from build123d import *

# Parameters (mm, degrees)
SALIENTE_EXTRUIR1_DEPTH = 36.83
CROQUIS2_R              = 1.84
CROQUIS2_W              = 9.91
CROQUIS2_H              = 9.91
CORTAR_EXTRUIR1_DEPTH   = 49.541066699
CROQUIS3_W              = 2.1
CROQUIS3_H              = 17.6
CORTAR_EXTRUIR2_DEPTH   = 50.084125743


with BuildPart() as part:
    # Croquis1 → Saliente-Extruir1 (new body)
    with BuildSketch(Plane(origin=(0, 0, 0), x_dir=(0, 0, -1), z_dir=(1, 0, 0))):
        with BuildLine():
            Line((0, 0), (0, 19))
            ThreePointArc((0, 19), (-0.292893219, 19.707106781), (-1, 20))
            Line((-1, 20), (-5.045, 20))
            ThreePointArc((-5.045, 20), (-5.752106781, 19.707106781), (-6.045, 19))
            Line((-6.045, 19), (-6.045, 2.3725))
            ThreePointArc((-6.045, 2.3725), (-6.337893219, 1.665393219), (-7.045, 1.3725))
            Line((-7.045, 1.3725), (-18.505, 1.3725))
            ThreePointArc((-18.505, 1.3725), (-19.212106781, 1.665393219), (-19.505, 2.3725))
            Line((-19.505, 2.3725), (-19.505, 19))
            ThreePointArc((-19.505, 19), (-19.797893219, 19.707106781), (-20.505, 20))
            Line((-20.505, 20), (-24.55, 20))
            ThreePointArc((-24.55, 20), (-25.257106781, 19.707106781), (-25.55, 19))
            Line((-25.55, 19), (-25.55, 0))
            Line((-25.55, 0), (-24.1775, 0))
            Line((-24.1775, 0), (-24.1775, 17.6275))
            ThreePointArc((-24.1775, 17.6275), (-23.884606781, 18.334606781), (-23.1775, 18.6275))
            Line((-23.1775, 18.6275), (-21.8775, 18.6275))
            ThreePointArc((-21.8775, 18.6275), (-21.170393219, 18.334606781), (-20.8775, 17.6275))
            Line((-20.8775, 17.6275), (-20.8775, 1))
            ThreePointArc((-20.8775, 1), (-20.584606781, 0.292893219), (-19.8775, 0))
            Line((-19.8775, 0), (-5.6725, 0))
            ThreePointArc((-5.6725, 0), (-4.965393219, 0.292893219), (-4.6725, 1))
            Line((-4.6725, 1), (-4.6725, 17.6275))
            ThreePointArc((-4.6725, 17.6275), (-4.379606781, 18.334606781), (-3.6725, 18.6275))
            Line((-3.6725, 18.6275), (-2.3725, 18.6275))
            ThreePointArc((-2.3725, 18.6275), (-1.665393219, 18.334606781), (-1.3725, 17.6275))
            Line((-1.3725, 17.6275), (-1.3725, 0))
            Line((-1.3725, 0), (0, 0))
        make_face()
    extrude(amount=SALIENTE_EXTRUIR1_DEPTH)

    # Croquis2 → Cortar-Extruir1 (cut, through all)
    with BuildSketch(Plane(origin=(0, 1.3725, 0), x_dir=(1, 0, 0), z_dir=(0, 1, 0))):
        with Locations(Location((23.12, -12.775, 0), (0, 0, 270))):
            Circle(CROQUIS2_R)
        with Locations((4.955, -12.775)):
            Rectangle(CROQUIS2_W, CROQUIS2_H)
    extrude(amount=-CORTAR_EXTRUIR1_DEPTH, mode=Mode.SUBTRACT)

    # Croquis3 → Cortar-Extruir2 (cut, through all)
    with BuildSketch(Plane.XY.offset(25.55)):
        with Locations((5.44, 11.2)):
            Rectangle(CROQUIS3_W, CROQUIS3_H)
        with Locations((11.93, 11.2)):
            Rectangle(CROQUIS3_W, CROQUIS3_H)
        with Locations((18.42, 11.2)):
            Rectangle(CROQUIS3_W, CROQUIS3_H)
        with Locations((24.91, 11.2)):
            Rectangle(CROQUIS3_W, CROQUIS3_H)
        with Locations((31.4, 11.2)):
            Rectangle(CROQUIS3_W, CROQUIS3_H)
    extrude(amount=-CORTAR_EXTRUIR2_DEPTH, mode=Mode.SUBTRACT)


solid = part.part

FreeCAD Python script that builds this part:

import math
import FreeCAD as App
import Part
import Sketcher


def add_polygon(sketch, points):
    """Adds a closed chain of lines whose ends are joined by coincident constraints."""
    first, n = sketch.GeometryCount, len(points)
    for a, b in zip(points, points[1:] + points[:1]):
        sketch.addGeometry(Part.LineSegment(App.Vector(*a, 0), App.Vector(*b, 0)), False)
    for i in range(n):
        sketch.addConstraint(Sketcher.Constraint("Coincident", first + i, 2, first + (i + 1) % n, 1))

doc = App.newDocument("Part")
body = doc.addObject("PartDesign::Body", "Body")

# Sketch on YZ plane
sketch1 = body.newObject("Sketcher::SketchObject", "Sketch")
sketch1.AttachmentSupport = (doc.getObject("YZ_Plane"), [""])
sketch1.MapMode = "FlatFace"
sketch1.addGeometry(Part.LineSegment(App.Vector(0, 0, 0), App.Vector(19, 0, 0)), False)
sketch1.addGeometry(Part.ArcOfCircle(Part.Circle(App.Vector(19, 1, 0), App.Vector(0, 0, 1), 1), math.radians(-90), math.radians(0)), False)
sketch1.addGeometry(Part.LineSegment(App.Vector(20, 1, 0), App.Vector(20, 5.045, 0)), False)
sketch1.addGeometry(Part.ArcOfCircle(Part.Circle(App.Vector(19, 5.045, 0), App.Vector(0, 0, 1), 1), math.radians(0), math.radians(90)), False)
sketch1.addGeometry(Part.LineSegment(App.Vector(19, 6.045, 0), App.Vector(2.3725, 6.045, 0)), False)
sketch1.addGeometry(Part.ArcOfCircle(Part.Circle(App.Vector(2.3725, 7.045, 0), App.Vector(0, 0, 1), 1), math.radians(-180), math.radians(-90)), False)
sketch1.addGeometry(Part.LineSegment(App.Vector(1.3725, 7.045, 0), App.Vector(1.3725, 18.505, 0)), False)
sketch1.addGeometry(Part.ArcOfCircle(Part.Circle(App.Vector(2.3725, 18.505, 0), App.Vector(0, 0, 1), 1), math.radians(90), math.radians(180)), False)
sketch1.addGeometry(Part.LineSegment(App.Vector(2.3725, 19.505, 0), App.Vector(19, 19.505, 0)), False)
sketch1.addGeometry(Part.ArcOfCircle(Part.Circle(App.Vector(19, 20.505, 0), App.Vector(0, 0, 1), 1), math.radians(-90), math.radians(0)), False)
sketch1.addGeometry(Part.LineSegment(App.Vector(20, 20.505, 0), App.Vector(20, 24.55, 0)), False)
sketch1.addGeometry(Part.ArcOfCircle(Part.Circle(App.Vector(19, 24.55, 0), App.Vector(0, 0, 1), 1), math.radians(0), math.radians(90)), False)
sketch1.addGeometry(Part.LineSegment(App.Vector(19, 25.55, 0), App.Vector(0, 25.55, 0)), False)
sketch1.addGeometry(Part.LineSegment(App.Vector(0, 25.55, 0), App.Vector(0, 24.1775, 0)), False)
sketch1.addGeometry(Part.LineSegment(App.Vector(0, 24.1775, 0), App.Vector(17.6275, 24.1775, 0)), False)
sketch1.addGeometry(Part.ArcOfCircle(Part.Circle(App.Vector(17.6275, 23.1775, 0), App.Vector(0, 0, 1), 1), math.radians(0), math.radians(90)), False)
sketch1.addGeometry(Part.LineSegment(App.Vector(18.6275, 23.1775, 0), App.Vector(18.6275, 21.8775, 0)), False)
sketch1.addGeometry(Part.ArcOfCircle(Part.Circle(App.Vector(17.6275, 21.8775, 0), App.Vector(0, 0, 1), 1), math.radians(-90), math.radians(0)), False)
sketch1.addGeometry(Part.LineSegment(App.Vector(17.6275, 20.8775, 0), App.Vector(1, 20.8775, 0)), False)
sketch1.addGeometry(Part.ArcOfCircle(Part.Circle(App.Vector(1, 19.8775, 0), App.Vector(0, 0, 1), 1), math.radians(90), math.radians(180)), False)
sketch1.addGeometry(Part.LineSegment(App.Vector(0, 19.8775, 0), App.Vector(0, 5.6725, 0)), False)
sketch1.addGeometry(Part.ArcOfCircle(Part.Circle(App.Vector(1, 5.6725, 0), App.Vector(0, 0, 1), 1), math.radians(-180), math.radians(-90)), False)
sketch1.addGeometry(Part.LineSegment(App.Vector(1, 4.6725, 0), App.Vector(17.6275, 4.6725, 0)), False)
sketch1.addGeometry(Part.ArcOfCircle(Part.Circle(App.Vector(17.6275, 3.6725, 0), App.Vector(0, 0, 1), 1), math.radians(0), math.radians(90)), False)
sketch1.addGeometry(Part.LineSegment(App.Vector(18.6275, 3.6725, 0), App.Vector(18.6275, 2.3725, 0)), False)
sketch1.addGeometry(Part.ArcOfCircle(Part.Circle(App.Vector(17.6275, 2.3725, 0), App.Vector(0, 0, 1), 1), math.radians(-90), math.radians(0)), False)
sketch1.addGeometry(Part.LineSegment(App.Vector(17.6275, 1.3725, 0), App.Vector(0, 1.3725, 0)), False)
sketch1.addGeometry(Part.LineSegment(App.Vector(0, 1.3725, 0), App.Vector(0, 0, 0)), False)
sketch1.addConstraint(Sketcher.Constraint("Tangent", 0, 2, 1, 1))
sketch1.addConstraint(Sketcher.Constraint("Tangent", 1, 2, 2, 1))
sketch1.addConstraint(Sketcher.Constraint("Tangent", 2, 2, 3, 1))
sketch1.addConstraint(Sketcher.Constraint("Tangent", 3, 2, 4, 1))
sketch1.addConstraint(Sketcher.Constraint("Tangent", 4, 2, 5, 2))
sketch1.addConstraint(Sketcher.Constraint("Tangent", 5, 1, 6, 1))
sketch1.addConstraint(Sketcher.Constraint("Tangent", 6, 2, 7, 2))
sketch1.addConstraint(Sketcher.Constraint("Tangent", 7, 1, 8, 1))
sketch1.addConstraint(Sketcher.Constraint("Tangent", 8, 2, 9, 1))
sketch1.addConstraint(Sketcher.Constraint("Tangent", 9, 2, 10, 1))
sketch1.addConstraint(Sketcher.Constraint("Tangent", 10, 2, 11, 1))
sketch1.addConstraint(Sketcher.Constraint("Tangent", 11, 2, 12, 1))
sketch1.addConstraint(Sketcher.Constraint("Coincident", 12, 2, 13, 1))
sketch1.addConstraint(Sketcher.Constraint("Coincident", 13, 2, 14, 1))
sketch1.addConstraint(Sketcher.Constraint("Tangent", 14, 2, 15, 2))
sketch1.addConstraint(Sketcher.Constraint("Tangent", 15, 1, 16, 1))
sketch1.addConstraint(Sketcher.Constraint("Tangent", 16, 2, 17, 2))
sketch1.addConstraint(Sketcher.Constraint("Tangent", 17, 1, 18, 1))
sketch1.addConstraint(Sketcher.Constraint("Tangent", 18, 2, 19, 1))
sketch1.addConstraint(Sketcher.Constraint("Tangent", 19, 2, 20, 1))
sketch1.addConstraint(Sketcher.Constraint("Tangent", 20, 2, 21, 1))
sketch1.addConstraint(Sketcher.Constraint("Tangent", 21, 2, 22, 1))
sketch1.addConstraint(Sketcher.Constraint("Tangent", 22, 2, 23, 2))
sketch1.addConstraint(Sketcher.Constraint("Tangent", 23, 1, 24, 1))
sketch1.addConstraint(Sketcher.Constraint("Tangent", 24, 2, 25, 2))
sketch1.addConstraint(Sketcher.Constraint("Tangent", 25, 1, 26, 1))
sketch1.addConstraint(Sketcher.Constraint("Coincident", 26, 2, 27, 1))
sketch1.addConstraint(Sketcher.Constraint("Coincident", 27, 2, 0, 1))
sketch1.addConstraint(Sketcher.Constraint("Horizontal", 0))
sketch1.addConstraint(Sketcher.Constraint("Vertical", 2))
sketch1.addConstraint(Sketcher.Constraint("Horizontal", 4))
sketch1.addConstraint(Sketcher.Constraint("Vertical", 6))
sketch1.addConstraint(Sketcher.Constraint("Horizontal", 8))
sketch1.addConstraint(Sketcher.Constraint("Vertical", 10))
sketch1.addConstraint(Sketcher.Constraint("Horizontal", 12))
sketch1.addConstraint(Sketcher.Constraint("Vertical", 13))
sketch1.addConstraint(Sketcher.Constraint("Horizontal", 14))
sketch1.addConstraint(Sketcher.Constraint("Vertical", 16))
sketch1.addConstraint(Sketcher.Constraint("Horizontal", 18))
sketch1.addConstraint(Sketcher.Constraint("Vertical", 20))
sketch1.addConstraint(Sketcher.Constraint("Horizontal", 22))
sketch1.addConstraint(Sketcher.Constraint("Vertical", 24))
sketch1.addConstraint(Sketcher.Constraint("Horizontal", 26))
sketch1.addConstraint(Sketcher.Constraint("Vertical", 27))
sketch1.addConstraint(Sketcher.Constraint("Coincident", 27, 2, -1, 1))
sketch1.addConstraint(Sketcher.Constraint("Equal", 1, 3))
sketch1.addConstraint(Sketcher.Constraint("Equal", 3, 5))
sketch1.addConstraint(Sketcher.Constraint("Equal", 5, 7))
sketch1.addConstraint(Sketcher.Constraint("Equal", 7, 9))
sketch1.addConstraint(Sketcher.Constraint("Equal", 9, 11))
sketch1.addConstraint(Sketcher.Constraint("Equal", 11, 15))
sketch1.addConstraint(Sketcher.Constraint("Equal", 15, 17))
sketch1.addConstraint(Sketcher.Constraint("Equal", 17, 19))
sketch1.addConstraint(Sketcher.Constraint("Equal", 19, 21))
sketch1.addConstraint(Sketcher.Constraint("Equal", 21, 23))
sketch1.addConstraint(Sketcher.Constraint("Equal", 23, 25))
sketch1.addConstraint(Sketcher.Constraint("PointOnObject", 12, 2, -2))
sketch1.addConstraint(Sketcher.Constraint("PointOnObject", 19, 2, -2))
sketch1.addConstraint(Sketcher.Constraint("Vertical", 3, 3, 9, 3))
sketch1.addConstraint(Sketcher.Constraint("Vertical", 17, 3, 23, 3))
sketch1.addConstraint(Sketcher.Constraint("Equal", 8, 18))
sketch1.addConstraint(Sketcher.Constraint("Equal", 2, 10))
sketch1.addConstraint(Sketcher.Constraint("Equal", 16, 24))
sketch1.addConstraint(Sketcher.Constraint("Equal", 13, 27))
sketch1.addConstraint(Sketcher.Constraint("Radius", 1, 1.0))
sketch1.addConstraint(Sketcher.Constraint("DistanceX", 0, 1, 0, 2, 19.0))
sketch1.addConstraint(Sketcher.Constraint("DistanceY", 16, 2, 16, 1, 1.3))
sketch1.addConstraint(Sketcher.Constraint("DistanceY", 6, 1, 6, 2, 11.46))
sketch1.addConstraint(Sketcher.Constraint("DistanceY", 2, 1, 2, 2, 4.045))
sketch1.addConstraint(Sketcher.Constraint("DistanceY", 20, 2, 20, 1, 14.205))
sketch1.addConstraint(Sketcher.Constraint("DistanceX", 4, 2, 4, 1, 16.6275))
pad1 = body.newObject("PartDesign::Pad", "Pad")
pad1.Profile = sketch1
pad1.Length = 36.83

# Sketch on XZ plane
sketch2 = body.newObject("Sketcher::SketchObject", "Sketch001")
sketch2.AttachmentSupport = (doc.getObject("XZ_Plane"), [""])
sketch2.MapMode = "FlatFace"
sketch2.AttachmentOffset = App.Placement(App.Vector(0, 0, -1.3725), App.Rotation())
sketch2.addGeometry(Part.Circle(App.Vector(23.12, 12.775, 0), App.Vector(0, 0, 1), 1.84), False)  # 0
add_polygon(sketch2, [(0, 7.82), (0, 17.73), (9.91, 17.73), (9.91, 7.82)])  # lines 1-4
sketch2.addConstraint(Sketcher.Constraint("Vertical", 1))
sketch2.addConstraint(Sketcher.Constraint("Horizontal", 2))
sketch2.addConstraint(Sketcher.Constraint("Vertical", 3))
sketch2.addConstraint(Sketcher.Constraint("Horizontal", 4))
sketch2.addConstraint(Sketcher.Constraint("PointOnObject", 1, 2, -2))
sketch2.addConstraint(Sketcher.Constraint("Equal", 4, 1))
sketch2.addConstraint(Sketcher.Constraint("Diameter", 0, 3.68))
sketch2.addConstraint(Sketcher.Constraint("DistanceX", 2, 1, 2, 2, 9.91))
sketch2.addConstraint(Sketcher.Constraint("DistanceX", -1, 1, 0, 3, 23.12))
sketch2.addConstraint(Sketcher.Constraint("DistanceY", -1, 1, 1, 2, 17.73))
sketch2.addConstraint(Sketcher.Constraint("DistanceY", -1, 1, 0, 3, 12.775))
pocket1 = body.newObject("PartDesign::Pocket", "Pocket")
pocket1.Profile = sketch2
pocket1.Type = "ThroughAll"
pocket1.Reversed = True

# Sketch on XY plane
sketch3 = body.newObject("Sketcher::SketchObject", "Sketch002")
sketch3.AttachmentSupport = (doc.getObject("XY_Plane"), [""])
sketch3.MapMode = "FlatFace"
sketch3.AttachmentOffset = App.Placement(App.Vector(0, 0, 25.55), App.Rotation())
add_polygon(sketch3, [(4.39, 20), (4.39, 2.4), (6.49, 2.4), (6.49, 20)])  # lines 0-3
add_polygon(sketch3, [(10.88, 20), (10.88, 2.4), (12.98, 2.4), (12.98, 20)])  # lines 4-7
add_polygon(sketch3, [(17.37, 20), (17.37, 2.4), (19.47, 2.4), (19.47, 20)])  # lines 8-11
add_polygon(sketch3, [(23.86, 20), (23.86, 2.4), (25.96, 2.4), (25.96, 20)])  # lines 12-15
add_polygon(sketch3, [(30.35, 20), (30.35, 2.4), (32.45, 2.4), (32.45, 20)])  # lines 16-19
sketch3.addConstraint(Sketcher.Constraint("Vertical", 0))
sketch3.addConstraint(Sketcher.Constraint("Horizontal", 1))
sketch3.addConstraint(Sketcher.Constraint("Vertical", 2))
sketch3.addConstraint(Sketcher.Constraint("Horizontal", 3))
sketch3.addConstraint(Sketcher.Constraint("Vertical", 4))
sketch3.addConstraint(Sketcher.Constraint("Horizontal", 5))
sketch3.addConstraint(Sketcher.Constraint("Vertical", 6))
sketch3.addConstraint(Sketcher.Constraint("Horizontal", 7))
sketch3.addConstraint(Sketcher.Constraint("Vertical", 8))
sketch3.addConstraint(Sketcher.Constraint("Horizontal", 9))
sketch3.addConstraint(Sketcher.Constraint("Vertical", 10))
sketch3.addConstraint(Sketcher.Constraint("Horizontal", 11))
sketch3.addConstraint(Sketcher.Constraint("Vertical", 12))
sketch3.addConstraint(Sketcher.Constraint("Horizontal", 13))
sketch3.addConstraint(Sketcher.Constraint("Vertical", 14))
sketch3.addConstraint(Sketcher.Constraint("Horizontal", 15))
sketch3.addConstraint(Sketcher.Constraint("Vertical", 16))
sketch3.addConstraint(Sketcher.Constraint("Horizontal", 17))
sketch3.addConstraint(Sketcher.Constraint("Vertical", 18))
sketch3.addConstraint(Sketcher.Constraint("Horizontal", 19))
sketch3.addConstraint(Sketcher.Constraint("Horizontal", 1, 2, 4, 2))
sketch3.addConstraint(Sketcher.Constraint("Horizontal", 3, 2, 6, 2))
sketch3.addConstraint(Sketcher.Constraint("Horizontal", 5, 2, 8, 2))
sketch3.addConstraint(Sketcher.Constraint("Horizontal", 7, 2, 10, 2))
sketch3.addConstraint(Sketcher.Constraint("Horizontal", 9, 2, 12, 2))
sketch3.addConstraint(Sketcher.Constraint("Horizontal", 11, 2, 14, 2))
sketch3.addConstraint(Sketcher.Constraint("Horizontal", 13, 2, 16, 2))
sketch3.addConstraint(Sketcher.Constraint("Horizontal", 15, 2, 18, 2))
sketch3.addConstraint(Sketcher.Constraint("Equal", 3, 5))
sketch3.addConstraint(Sketcher.Constraint("Equal", 7, 9))
sketch3.addConstraint(Sketcher.Constraint("Equal", 11, 13))
sketch3.addConstraint(Sketcher.Constraint("Equal", 15, 17))
sketch3.addConstraint(Sketcher.Constraint("DistanceX", 1, 1, 1, 2, 2.1))
sketch3.addConstraint(Sketcher.Constraint("DistanceY", 0, 2, 0, 1, 17.6))
sketch3.addConstraint(Sketcher.Constraint("DistanceY", -1, 1, 2, 2, 20.0))
sketch3.addConstraint(Sketcher.Constraint("DistanceX", -1, 1, 0, 2, 4.39))
sketch3.addConstraint(Sketcher.Constraint("DistanceX", -1, 1, 4, 2, 10.88))
sketch3.addConstraint(Sketcher.Constraint("DistanceX", -1, 1, 8, 2, 17.37))
sketch3.addConstraint(Sketcher.Constraint("DistanceX", -1, 1, 12, 2, 23.86))
sketch3.addConstraint(Sketcher.Constraint("DistanceX", -1, 1, 16, 2, 30.35))
pocket2 = body.newObject("PartDesign::Pocket", "Pocket001")
pocket2.Profile = sketch3
pocket2.Type = "ThroughAll"

doc.recompute()
